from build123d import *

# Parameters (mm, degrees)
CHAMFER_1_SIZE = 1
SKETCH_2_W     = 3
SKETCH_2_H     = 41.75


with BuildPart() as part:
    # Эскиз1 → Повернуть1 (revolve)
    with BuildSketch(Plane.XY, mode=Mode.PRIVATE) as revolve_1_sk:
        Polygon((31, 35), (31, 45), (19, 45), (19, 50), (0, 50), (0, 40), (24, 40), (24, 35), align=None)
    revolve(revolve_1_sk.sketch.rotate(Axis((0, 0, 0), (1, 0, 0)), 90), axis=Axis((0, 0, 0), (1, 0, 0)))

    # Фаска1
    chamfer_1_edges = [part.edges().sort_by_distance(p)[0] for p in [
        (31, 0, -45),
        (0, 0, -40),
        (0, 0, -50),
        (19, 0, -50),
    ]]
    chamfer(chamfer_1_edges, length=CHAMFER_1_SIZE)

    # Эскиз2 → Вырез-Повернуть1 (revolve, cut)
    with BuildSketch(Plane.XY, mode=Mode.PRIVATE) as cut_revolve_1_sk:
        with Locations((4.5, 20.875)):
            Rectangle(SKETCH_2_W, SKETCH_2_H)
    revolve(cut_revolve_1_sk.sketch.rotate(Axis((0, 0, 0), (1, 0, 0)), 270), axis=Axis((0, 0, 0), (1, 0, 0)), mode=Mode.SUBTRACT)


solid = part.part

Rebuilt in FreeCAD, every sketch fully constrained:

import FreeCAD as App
import Part
import Sketcher

V = App.Vector


def edges_at(feature, points):
    """Names of the edges that pass closest to the given points."""
    edges = feature.Shape.Edges
    near = lambda p: min(range(len(edges)), key=lambda i: edges[i].distToShape(Part.Vertex(*p))[0])
    return sorted({f"Edge{near(p) + 1}" for p in points})

doc = App.newDocument("Part")
body = doc.addObject("PartDesign::Body", "Body")

sketch1 = body.newObject("Sketcher::SketchObject", "Sketch")
sketch1.AttachmentSupport = (doc.getObject("XY_Plane"), [""])
sketch1.MapMode = "FlatFace"
sketch1.addGeometry(Part.LineSegment(V(31, 35, 0), V(31, 45, 0)), False)
sketch1.addGeometry(Part.LineSegment(V(31, 45, 0), V(19, 45, 0)), False)
sketch1.addGeometry(Part.LineSegment(V(19, 45, 0), V(19, 50, 0)), False)
sketch1.addGeometry(Part.LineSegment(V(19, 50, 0), V(0, 50, 0)), False)
sketch1.addGeometry(Part.LineSegment(V(0, 50, 0), V(0, 40, 0)), False)
sketch1.addGeometry(Part.LineSegment(V(0, 40, 0), V(24, 40, 0)), False)
sketch1.addGeometry(Part.LineSegment(V(24, 40, 0), V(24, 35, 0)), False)
sketch1.addGeometry(Part.LineSegment(V(24, 35, 0), V(31, 35, 0)), False)
sketch1.addConstraint(Sketcher.Constraint("Coincident", 0, 2, 1, 1))
sketch1.addConstraint(Sketcher.Constraint("Coincident", 1, 2, 2, 1))
sketch1.addConstraint(Sketcher.Constraint("Coincident", 2, 2, 3, 1))
sketch1.addConstraint(Sketcher.Constraint("Coincident", 3, 2, 4, 1))
sketch1.addConstraint(Sketcher.Constraint("Coincident", 4, 2, 5, 1))
sketch1.addConstraint(Sketcher.Constraint("Coincident", 5, 2, 6, 1))
sketch1.addConstraint(Sketcher.Constraint("Coincident", 6, 2, 7, 1))
sketch1.addConstraint(Sketcher.Constraint("Coincident", 7, 2, 0, 1))
sketch1.addConstraint(Sketcher.Constraint("Vertical", 0))
sketch1.addConstraint(Sketcher.Constraint("Horizontal", 1))
sketch1.addConstraint(Sketcher.Constraint("Vertical", 2))
sketch1.addConstraint(Sketcher.Constraint("Horizontal", 3))
sketch1.addConstraint(Sketcher.Constraint("Vertical", 4))
sketch1.addConstraint(Sketcher.Constraint("Horizontal", 5))
sketch1.addConstraint(Sketcher.Constraint("Vertical", 6))
sketch1.addConstraint(Sketcher.Constraint("Horizontal", 7))
sketch1.addConstraint(Sketcher.Constraint("PointOnObject", 3, 2, -2))
sketch1.addConstraint(Sketcher.Constraint("Equal", 0, 4))
sketch1.addConstraint(Sketcher.Constraint("DistanceX", 1, 2, 1, 1, 12.0))
sketch1.addConstraint(Sketcher.Constraint("DistanceX", 3, 2, 3, 1, 19.0))
sketch1.addConstraint(Sketcher.Constraint("DistanceX", 5, 1, 5, 2, 24.0))
sketch1.addConstraint(Sketcher.Constraint("DistanceY", 0, 1, 0, 2, 10.0))
sketch1.addConstraint(Sketcher.Constraint("DistanceY", 2, 1, 2, 2, 5.0))
sketch1.addConstraint(Sketcher.Constraint("DistanceY", -1, 1, 0, 2, 45.0))
revolution = body.newObject("PartDesign::Revolution", "Revolution")
revolution.Profile = sketch1
revolution.ReferenceAxis = (sketch1, ["H_Axis"])
revolution.Angle = 360
doc.recompute()

chamfer = body.newObject("PartDesign::Chamfer", "Chamfer")
chamfer.Base = (revolution, edges_at(revolution, [
    (31, 0, -45),
    (0, 0, -40),
    (0, 0, -50),
    (19, 0, -50),
]))
chamfer.Size = 1

sketch2 = body.newObject("Sketcher::SketchObject", "Sketch001")
sketch2.AttachmentSupport = (doc.getObject("XY_Plane"), [""])
sketch2.MapMode = "FlatFace"
sketch2.addGeometry(Part.LineSegment(V(3, 41.8, 0), V(3, 0, 0)), False)
sketch2.addGeometry(Part.LineSegment(V(3, 0, 0), V(6, 0, 0)), False)
sketch2.addGeometry(Part.LineSegment(V(6, 0, 0), V(6, 41.8, 0)), False)
sketch2.addGeometry(Part.LineSegment(V(6, 41.8, 0), V(3, 41.8, 0)), False)
sketch2.addConstraint(Sketcher.Constraint("Coincident", 0, 2, 1, 1))
sketch2.addConstraint(Sketcher.Constraint("Coincident", 1, 2, 2, 1))
sketch2.addConstraint(Sketcher.Constraint("Coincident", 2, 2, 3, 1))
sketch2.addConstraint(Sketcher.Constraint("Coincident", 3, 2, 0, 1))
sketch2.addConstraint(Sketcher.Constraint("Vertical", 0))
sketch2.addConstraint(Sketcher.Constraint("Horizontal", 1))
sketch2.addConstraint(Sketcher.Constraint("Vertical", 2))
sketch2.addConstraint(Sketcher.Constraint("Horizontal", 3))
sketch2.addConstraint(Sketcher.Constraint("PointOnObject", 0, 2, -1))
sketch2.addConstraint(Sketcher.Constraint("DistanceX", 1, 1, 1, 2, 3.0))
sketch2.addConstraint(Sketcher.Constraint("DistanceX", -1, 1, 0, 2, 3.0))
sketch2.addConstraint(Sketcher.Constraint("DistanceY", 0, 2, 0, 1, 41.75))
groove = body.newObject("PartDesign::Groove", "Groove")
groove.Profile = sketch2
groove.ReferenceAxis = (sketch2, ["H_Axis"])
groove.Angle = 360

doc.recompute()
